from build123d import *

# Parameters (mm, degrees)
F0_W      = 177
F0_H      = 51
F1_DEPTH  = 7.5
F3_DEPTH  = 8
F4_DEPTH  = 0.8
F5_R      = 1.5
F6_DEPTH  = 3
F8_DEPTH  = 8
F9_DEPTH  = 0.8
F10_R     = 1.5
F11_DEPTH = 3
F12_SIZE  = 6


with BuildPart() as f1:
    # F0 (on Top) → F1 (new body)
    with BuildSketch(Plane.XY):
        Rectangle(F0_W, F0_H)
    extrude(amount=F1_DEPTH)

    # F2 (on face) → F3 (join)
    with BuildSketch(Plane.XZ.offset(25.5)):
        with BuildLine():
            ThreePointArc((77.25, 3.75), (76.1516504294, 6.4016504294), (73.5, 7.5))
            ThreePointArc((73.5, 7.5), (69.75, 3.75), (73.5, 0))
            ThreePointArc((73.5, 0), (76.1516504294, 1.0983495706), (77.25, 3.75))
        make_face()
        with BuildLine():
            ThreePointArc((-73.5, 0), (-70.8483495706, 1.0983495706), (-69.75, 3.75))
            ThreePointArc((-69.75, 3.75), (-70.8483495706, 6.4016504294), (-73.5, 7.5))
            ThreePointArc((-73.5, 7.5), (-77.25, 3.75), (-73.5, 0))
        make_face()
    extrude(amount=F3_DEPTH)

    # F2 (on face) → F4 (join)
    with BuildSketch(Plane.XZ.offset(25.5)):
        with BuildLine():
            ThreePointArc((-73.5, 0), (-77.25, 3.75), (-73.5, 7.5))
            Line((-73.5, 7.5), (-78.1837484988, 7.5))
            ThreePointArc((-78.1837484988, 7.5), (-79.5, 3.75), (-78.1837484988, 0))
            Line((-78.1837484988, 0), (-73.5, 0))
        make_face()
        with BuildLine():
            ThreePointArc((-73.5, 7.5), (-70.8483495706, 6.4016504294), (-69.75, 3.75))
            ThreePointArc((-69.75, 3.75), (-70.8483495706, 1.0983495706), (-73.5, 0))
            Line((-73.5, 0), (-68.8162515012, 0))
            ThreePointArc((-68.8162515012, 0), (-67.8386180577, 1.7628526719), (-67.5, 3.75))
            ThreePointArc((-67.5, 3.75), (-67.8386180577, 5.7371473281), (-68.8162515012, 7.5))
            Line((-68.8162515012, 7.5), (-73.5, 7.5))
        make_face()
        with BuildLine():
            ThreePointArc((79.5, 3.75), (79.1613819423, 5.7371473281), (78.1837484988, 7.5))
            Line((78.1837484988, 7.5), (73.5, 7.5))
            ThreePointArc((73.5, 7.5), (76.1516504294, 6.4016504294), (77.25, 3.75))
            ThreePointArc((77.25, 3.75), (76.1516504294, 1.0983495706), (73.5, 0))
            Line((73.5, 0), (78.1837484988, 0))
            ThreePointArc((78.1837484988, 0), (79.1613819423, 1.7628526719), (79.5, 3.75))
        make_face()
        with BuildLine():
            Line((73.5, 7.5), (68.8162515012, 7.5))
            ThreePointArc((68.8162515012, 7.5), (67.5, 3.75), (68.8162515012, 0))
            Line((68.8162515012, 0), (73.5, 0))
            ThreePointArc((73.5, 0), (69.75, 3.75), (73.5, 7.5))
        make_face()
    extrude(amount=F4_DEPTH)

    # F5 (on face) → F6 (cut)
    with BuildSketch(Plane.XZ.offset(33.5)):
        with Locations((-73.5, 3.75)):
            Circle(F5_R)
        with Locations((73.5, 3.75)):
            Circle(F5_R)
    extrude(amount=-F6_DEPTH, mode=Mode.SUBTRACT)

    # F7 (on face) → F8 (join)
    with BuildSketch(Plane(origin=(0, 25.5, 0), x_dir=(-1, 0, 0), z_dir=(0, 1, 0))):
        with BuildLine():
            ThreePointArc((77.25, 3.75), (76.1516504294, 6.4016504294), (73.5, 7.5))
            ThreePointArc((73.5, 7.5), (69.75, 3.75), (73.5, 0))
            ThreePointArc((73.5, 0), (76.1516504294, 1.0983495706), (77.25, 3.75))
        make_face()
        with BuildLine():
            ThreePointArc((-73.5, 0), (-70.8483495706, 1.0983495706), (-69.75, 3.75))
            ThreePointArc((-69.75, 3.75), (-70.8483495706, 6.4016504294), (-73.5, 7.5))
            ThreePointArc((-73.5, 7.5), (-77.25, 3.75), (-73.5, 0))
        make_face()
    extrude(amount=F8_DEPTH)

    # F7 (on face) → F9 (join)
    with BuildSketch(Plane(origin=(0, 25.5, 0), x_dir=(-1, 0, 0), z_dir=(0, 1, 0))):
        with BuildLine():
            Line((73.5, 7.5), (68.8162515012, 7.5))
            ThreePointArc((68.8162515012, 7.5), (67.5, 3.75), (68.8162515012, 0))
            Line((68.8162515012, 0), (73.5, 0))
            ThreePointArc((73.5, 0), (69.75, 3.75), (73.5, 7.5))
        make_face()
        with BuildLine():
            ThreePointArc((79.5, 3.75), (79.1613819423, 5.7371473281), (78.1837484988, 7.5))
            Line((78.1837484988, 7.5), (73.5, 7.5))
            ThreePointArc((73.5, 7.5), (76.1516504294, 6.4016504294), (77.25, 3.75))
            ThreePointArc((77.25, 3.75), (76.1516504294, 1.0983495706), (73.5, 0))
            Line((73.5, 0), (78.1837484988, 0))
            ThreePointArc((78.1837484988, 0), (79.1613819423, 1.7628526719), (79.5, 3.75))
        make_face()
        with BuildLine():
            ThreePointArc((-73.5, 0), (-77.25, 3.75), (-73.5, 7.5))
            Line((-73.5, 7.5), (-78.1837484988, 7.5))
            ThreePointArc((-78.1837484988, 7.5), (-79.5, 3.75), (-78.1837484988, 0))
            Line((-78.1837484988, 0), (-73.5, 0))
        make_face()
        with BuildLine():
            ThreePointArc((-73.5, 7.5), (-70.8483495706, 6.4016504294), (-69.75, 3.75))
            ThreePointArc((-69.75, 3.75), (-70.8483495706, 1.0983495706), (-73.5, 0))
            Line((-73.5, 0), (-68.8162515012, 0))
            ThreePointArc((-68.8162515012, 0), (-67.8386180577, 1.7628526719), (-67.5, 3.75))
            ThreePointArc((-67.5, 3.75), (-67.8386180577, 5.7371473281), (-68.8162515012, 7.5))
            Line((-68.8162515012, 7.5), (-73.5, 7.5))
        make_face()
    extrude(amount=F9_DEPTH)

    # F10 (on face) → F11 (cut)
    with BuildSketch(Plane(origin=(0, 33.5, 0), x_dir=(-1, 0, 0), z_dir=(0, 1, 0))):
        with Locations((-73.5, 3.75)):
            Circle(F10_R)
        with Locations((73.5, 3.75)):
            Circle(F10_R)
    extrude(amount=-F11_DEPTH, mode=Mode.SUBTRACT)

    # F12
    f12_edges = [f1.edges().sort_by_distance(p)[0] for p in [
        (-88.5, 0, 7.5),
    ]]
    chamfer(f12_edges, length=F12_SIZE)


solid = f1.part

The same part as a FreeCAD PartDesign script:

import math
import FreeCAD as App
import Part
import Sketcher
Q = App.Units.Quantity


def edges_at(feature, points):
    """Names of the edges that pass closest to the given points."""
    edges = feature.Shape.Edges
    near = lambda p: min(range(len(edges)), key=lambda i: edges[i].distToShape(Part.Vertex(*p))[0])
    return sorted({f"Edge{near(p) + 1}" for p in points})


def add_polygon(sketch, points):
    """Adds a closed chain of lines whose ends are joined by coincident constraints."""
    first, n = sketch.GeometryCount, len(points)
    for a, b in zip(points, points[1:] + points[:1]):
        sketch.addGeometry(Part.LineSegment(App.Vector(*a, 0), App.Vector(*b, 0)), False)
    for i in range(n):
        sketch.addConstraint(Sketcher.Constraint("Coincident", first + i, 2, first + (i + 1) % n, 1))

doc = App.newDocument("Part")
params = doc.addObject("Spreadsheet::Sheet", "Params")
for row, (alias, value) in enumerate([
    ("sketch1_width", "177 mm"),
    ("sketch1_height", "51 mm"),
    ("pad1_length", "7.5 mm"),
    ("sketch2_radius", "3.75 mm"),
    ("pad2_length", "8 mm"),
    ("sketch3_radius", "6 mm"),
    ("sketch3_radius2", "3.75 mm"),
    ("pad3_length", "0.8 mm"),
    ("sketch4_diameter", "3 mm"),
    ("pocket1_length", "3 mm"),
    ("sketch5_radius", "3.75 mm"),
    ("pad4_length", "8 mm"),
    ("sketch6_radius", "6 mm"),
    ("sketch6_radius2", "3.75 mm"),
    ("pad5_length", "0.8 mm"),
    ("sketch7_diameter", "3 mm"),
    ("pocket2_length", "3 mm"),
    ("chamfer_size", "6 mm"),
], start=1):
    params.set(f"A{row}", alias)
    params.set(f"B{row}", "=" + value)
    params.setAlias(f"B{row}", alias)

body = doc.addObject("PartDesign::Body", "Body")

# Sketch on XY plane
sketch1 = body.newObject("Sketcher::SketchObject", "Sketch")
sketch1.AttachmentSupport = (doc.getObject("XY_Plane"), [""])
sketch1.MapMode = "FlatFace"
add_polygon(sketch1, [(-88.5, 25.5), (-88.5, -25.5), (88.5, -25.5), (88.5, 25.5)])  # lines 0-3
sketch1.addConstraint([
    Sketcher.Constraint("Vertical", 0),
    Sketcher.Constraint("Horizontal", 1),
    Sketcher.Constraint("Vertical", 2),
    Sketcher.Constraint("Horizontal", 3),
    Sketcher.Constraint("Symmetric", 0, 2, 2, 2, -1, 1),
    Sketcher.Constraint("DistanceX", 1, 1, 1, 2, Q("177 mm")),
    Sketcher.Constraint("DistanceY", 0, 2, 0, 1, Q("51 mm")),
])
sketch1.setExpression("Constraints[9]", "Params.sketch1_width")
sketch1.setExpression("Constraints[10]", "Params.sketch1_height")
pad1 = body.newObject("PartDesign::Pad", "Pad")
pad1.Profile = sketch1
pad1.setExpression("Length", "Params.pad1_length")

# Sketch on XZ plane
sketch2 = body.newObject("Sketcher::SketchObject", "Sketch001")
sketch2.AttachmentSupport = (doc.getObject("XZ_Plane"), [""])
sketch2.MapMode = "FlatFace"
sketch2.AttachmentOffset = App.Placement(App.Vector(0, 0, 25.5), App.Rotation())
sketch2.addGeometry([
    Part.ArcOfCircle(Part.Circle(App.Vector(73.5, 3.75, 0), App.Vector(0, 0, 1), 3.75), math.radians(0), math.radians(90)),  # 0
    Part.ArcOfCircle(Part.Circle(App.Vector(73.5, 3.75, 0), App.Vector(0, 0, 1), 3.75), math.radians(90), math.radians(270)),  # 1
    Part.ArcOfCircle(Part.Circle(App.Vector(73.5, 3.75, 0), App.Vector(0, 0, 1), 3.75), math.radians(-90), math.radians(0)),  # 2
    Part.ArcOfCircle(Part.Circle(App.Vector(-73.5, 3.75, 0), App.Vector(0, 0, 1), 3.75), math.radians(-90), math.radians(0)),  # 3
    Part.ArcOfCircle(Part.Circle(App.Vector(-73.5, 3.75, 0), App.Vector(0, 0, 1), 3.75), math.radians(0), math.radians(90)),  # 4
    Part.ArcOfCircle(Part.Circle(App.Vector(-73.5, 3.75, 0), App.Vector(0, 0, 1), 3.75), math.radians(90), math.radians(270)),  # 5
], False)
sketch2.addConstraint([
    Sketcher.Constraint("Tangent", 0, 2, 1, 1),
    Sketcher.Constraint("Tangent", 1, 2, 2, 1),
    Sketcher.Constraint("Tangent", 2, 2, 0, 1),
    Sketcher.Constraint("Tangent", 3, 2, 4, 1),
    Sketcher.Constraint("Tangent", 4, 2, 5, 1),
    Sketcher.Constraint("Tangent", 5, 2, 3, 1),
    Sketcher.Constraint("Equal", 2, 3),
    Sketcher.Constraint("Symmetric", 1, 2, 5, 2, -1, 1),
    Sketcher.Constraint("Symmetric", 0, 3, 3, 3, -2),
    Sketcher.Constraint("Horizontal", 5, 3, 2, 2),
    Sketcher.Constraint("Horizontal", 2, 2, 3, 2),
    Sketcher.Constraint("Vertical", 2, 3, 0, 2),
    Sketcher.Constraint("Vertical", 0, 2, 1, 2),
    Sketcher.Constraint("Vertical", 5, 3, 4, 2),
    Sketcher.Constraint("Radius", 0, Q("3.75 mm")),
    Sketcher.Constraint("DistanceX", 3, 3, 0, 3, Q("147 mm")),
])
sketch2.setExpression("Constraints[14]", "Params.sketch2_radius")
pad2 = body.newObject("PartDesign::Pad", "Pad001")
pad2.Profile = sketch2
pad2.setExpression("Length", "Params.pad2_length")

# Sketch on XZ plane
sketch3 = body.newObject("Sketcher::SketchObject", "Sketch002")
sketch3.AttachmentSupport = (doc.getObject("XZ_Plane"), [""])
sketch3.MapMode = "FlatFace"
sketch3.AttachmentOffset = App.Placement(App.Vector(0, 0, 25.5), App.Rotation())
sketch3.addGeometry([
    Part.ArcOfCircle(Part.Circle(App.Vector(-73.5, 3.75, 0), App.Vector(0, 0, 1), 3.75), math.radians(90), math.radians(270)),  # 0
    Part.LineSegment(App.Vector(-73.5, 7.5, 0), App.Vector(-78.183748, 7.5, 0)),  # 1
    Part.ArcOfCircle(Part.Circle(App.Vector(-73.5, 3.75, 0), App.Vector(0, 0, 1), 6), math.radians(141.317813), math.radians(218.682187)),  # 2
    Part.LineSegment(App.Vector(-78.183748, 0, 0), App.Vector(-73.5, 0, 0)),  # 3
    Part.ArcOfCircle(Part.Circle(App.Vector(-73.5, 3.75, 0), App.Vector(0, 0, 1), 3.75), math.radians(0), math.radians(90)),  # 4
    Part.ArcOfCircle(Part.Circle(App.Vector(-73.5, 3.75, 0), App.Vector(0, 0, 1), 3.75), math.radians(-90), math.radians(0)),  # 5
    Part.LineSegment(App.Vector(-73.5, 0, 0), App.Vector(-68.816252, 0, 0)),  # 6
    Part.ArcOfCircle(Part.Circle(App.Vector(-73.5, 3.75, 0), App.Vector(0, 0, 1), 6), math.radians(-38.682187), math.radians(0)),  # 7
    Part.ArcOfCircle(Part.Circle(App.Vector(-73.5, 3.75, 0), App.Vector(0, 0, 1), 6), math.radians(0), math.radians(38.682187)),  # 8
    Part.LineSegment(App.Vector(-68.816252, 7.5, 0), App.Vector(-73.5, 7.5, 0)),  # 9
    Part.ArcOfCircle(Part.Circle(App.Vector(73.5, 3.75, 0), App.Vector(0, 0, 1), 6), math.radians(0), math.radians(38.682187)),  # 10
    Part.LineSegment(App.Vector(78.183748, 7.5, 0), App.Vector(73.5, 7.5, 0)),  # 11
    Part.ArcOfCircle(Part.Circle(App.Vector(73.5, 3.75, 0), App.Vector(0, 0, 1), 3.75), math.radians(0), math.radians(90)),  # 12
    Part.ArcOfCircle(Part.Circle(App.Vector(73.5, 3.75, 0), App.Vector(0, 0, 1), 3.75), math.radians(-90), math.radians(0)),  # 13
    Part.LineSegment(App.Vector(73.5, 0, 0), App.Vector(78.183748, 0, 0)),  # 14
    Part.ArcOfCircle(Part.Circle(App.Vector(73.5, 3.75, 0), App.Vector(0, 0, 1), 6), math.radians(-38.682187), math.radians(0)),  # 15
    Part.LineSegment(App.Vector(73.5, 7.5, 0), App.Vector(68.816252, 7.5, 0)),  # 16
    Part.ArcOfCircle(Part.Circle(App.Vector(73.5, 3.75, 0), App.Vector(0, 0, 1), 6), math.radians(141.317813), math.radians(218.682187)),  # 17
    Part.LineSegment(App.Vector(68.816252, 0, 0), App.Vector(73.5, 0, 0)),  # 18
    Part.ArcOfCircle(Part.Circle(App.Vector(73.5, 3.75, 0), App.Vector(0, 0, 1), 3.75), math.radians(90), math.radians(270)),  # 19
], False)
sketch3.addConstraint([
    Sketcher.Constraint("Tangent", 0, 1, 1, 1),
    Sketcher.Constraint("Coincident", 1, 2, 2, 1),
    Sketcher.Constraint("Coincident", 2, 2, 3, 1),
    Sketcher.Constraint("Tangent", 3, 2, 0, 2),
    Sketcher.Constraint("Tangent", 4, 1, 5, 2),
    Sketcher.Constraint("Tangent", 5, 1, 6, 1),
    Sketcher.Constraint("Coincident", 6, 2, 7, 1),
    Sketcher.Constraint("Tangent", 7, 2, 8, 1),
    Sketcher.Constraint("Coincident", 8, 2, 9, 1),
    Sketcher.Constraint("Tangent", 9, 2, 4, 2),
    Sketcher.Constraint("Coincident", 10, 2, 11, 1),
    Sketcher.Constraint("Tangent", 11, 2, 12, 2),
    Sketcher.Constraint("Tangent", 12, 1, 13, 2),
    Sketcher.Constraint("Tangent", 13, 1, 14, 1),
    Sketcher.Constraint("Coincident", 14, 2, 15, 1),
    Sketcher.Constraint("Tangent", 15, 2, 10, 1),
    Sketcher.Constraint("Coincident", 16, 2, 17, 1),
    Sketcher.Constraint("Coincident", 17, 2, 18, 1),
    Sketcher.Constraint("Tangent", 18, 2, 19, 2),
    Sketcher.Constraint("Tangent", 19, 1, 16, 1),
    Sketcher.Constraint("Horizontal", 1),
    Sketcher.Constraint("Horizontal", 3),
    Sketcher.Constraint("Horizontal", 6),
    Sketcher.Constraint("Horizontal", 9),
    Sketcher.Constraint("Horizontal", 11),
    Sketcher.Constraint("Horizontal", 14),
    Sketcher.Constraint("Horizontal", 16),
    Sketcher.Constraint("Horizontal", 18),
    Sketcher.Constraint("Coincident", 2, 3, 0, 3),
    Sketcher.Constraint("Coincident", 4, 3, 0, 3),
    Sketcher.Constraint("Coincident", 7, 3, 0, 3),
    Sketcher.Constraint("Coincident", 12, 3, 10, 3),
    Sketcher.Constraint("Coincident", 17, 3, 10, 3),
    Sketcher.Constraint("Coincident", 19, 3, 10, 3),
    Sketcher.Constraint("Coincident", 5, 1, 3, 2),
    Sketcher.Constraint("Coincident", 18, 2, 13, 1),
    Sketcher.Constraint("Equal", 2, 7),
    Sketcher.Constraint("Equal", 7, 8),
    Sketcher.Constraint("Equal", 8, 10),
    Sketcher.Constraint("Equal", 5, 12),
    Sketcher.Constraint("Equal", 10, 15),
    Sketcher.Constraint("Equal", 15, 17),
    Sketcher.Constraint("Symmetric", 3, 2, 13, 1, -1, 1),
    Sketcher.Constraint("PointOnObject", 2, 2, -1),
    Sketcher.Constraint("Horizontal", 19, 3, 4, 1),
    Sketcher.Constraint("Horizontal", 4, 1, 7, 2),
    Sketcher.Constraint("Horizontal", 7, 2, 12, 1),
    Sketcher.Constraint("Horizontal", 12, 1, 15, 2),
    Sketcher.Constraint("Radius", 2, Q("6 mm")),
    Sketcher.Constraint("Radius", 0, Q("3.75 mm")),
    Sketcher.Constraint("DistanceX", 0, 3, 10, 3, Q("147 mm")),
])
sketch3.setExpression("Constraints[48]", "Params.sketch3_radius")
sketch3.setExpression("Constraints[49]", "Params.sketch3_radius2")
pad3 = body.newObject("PartDesign::Pad", "Pad002")
pad3.Profile = sketch3
pad3.setExpression("Length", "Params.pad3_length")

# Sketch on XZ plane
sketch4 = body.newObject("Sketcher::SketchObject", "Sketch003")
sketch4.AttachmentSupport = (doc.getObject("XZ_Plane"), [""])
sketch4.MapMode = "FlatFace"
sketch4.AttachmentOffset = App.Placement(App.Vector(0, 0, 33.5), App.Rotation())
sketch4.addGeometry([
    Part.Circle(App.Vector(-73.5, 3.75, 0), App.Vector(0, 0, 1), 1.5),
    Part.Circle(App.Vector(73.5, 3.75, 0), App.Vector(0, 0, 1), 1.5),
], False)
sketch4.addConstraint([
    Sketcher.Constraint("Equal", 0, 1),
    Sketcher.Constraint("Symmetric", 0, 3, 1, 3, -2),
    Sketcher.Constraint("Diameter", 0, Q("3 mm")),
    Sketcher.Constraint("DistanceX", 0, 3, 1, 3, Q("147 mm")),
    Sketcher.Constraint("DistanceY", -1, 1, 0, 3, Q("3.75 mm")),
])
sketch4.setExpression("Constraints[2]", "Params.sketch4_diameter")
pocket1 = body.newObject("PartDesign::Pocket", "Pocket")
pocket1.Profile = sketch4
pocket1.setExpression("Length", "Params.pocket1_length")

# Sketch on XZ plane
sketch5 = body.newObject("Sketcher::SketchObject", "Sketch004")
sketch5.AttachmentSupport = (doc.getObject("XZ_Plane"), [""])
sketch5.MapMode = "FlatFace"
sketch5.AttachmentOffset = App.Placement(App.Vector(0, 0, -25.5), App.Rotation())
sketch5.addGeometry([
    Part.ArcOfCircle(Part.Circle(App.Vector(-73.5, 3.75, 0), App.Vector(0, 0, 1), 3.75), math.radians(90), math.radians(180)),  # 0
    Part.ArcOfCircle(Part.Circle(App.Vector(-73.5, 3.75, 0), App.Vector(0, 0, 1), 3.75), math.radians(-90), math.radians(90)),  # 1
    Part.ArcOfCircle(Part.Circle(App.Vector(-73.5, 3.75, 0), App.Vector(0, 0, 1), 3.75), math.radians(180), math.radians(270)),  # 2
    Part.ArcOfCircle(Part.Circle(App.Vector(73.5, 3.75, 0), App.Vector(0, 0, 1), 3.75), math.radians(180), math.radians(270)),  # 3
    Part.ArcOfCircle(Part.Circle(App.Vector(73.5, 3.75, 0), App.Vector(0, 0, 1), 3.75), math.radians(90), math.radians(180)),  # 4
    Part.ArcOfCircle(Part.Circle(App.Vector(73.5, 3.75, 0), App.Vector(0, 0, 1), 3.75), math.radians(-90), math.radians(90)),  # 5
], False)
sketch5.addConstraint([
    Sketcher.Constraint("Tangent", 0, 1, 1, 2),
    Sketcher.Constraint("Tangent", 1, 1, 2, 2),
    Sketcher.Constraint("Tangent", 2, 1, 0, 2),
    Sketcher.Constraint("Tangent", 3, 1, 4, 2),
    Sketcher.Constraint("Tangent", 4, 1, 5, 2),
    Sketcher.Constraint("Tangent", 5, 1, 3, 2),
    Sketcher.Constraint("Equal", 2, 3),
    Sketcher.Constraint("Symmetric", 1, 1, 5, 1, -1, 1),
    Sketcher.Constraint("Symmetric", 0, 3, 3, 3, -2),
    Sketcher.Constraint("Horizontal", 5, 3, 2, 1),
    Sketcher.Constraint("Horizontal", 2, 1, 3, 1),
    Sketcher.Constraint("Vertical", 2, 3, 0, 1),
    Sketcher.Constraint("Vertical", 0, 1, 1, 1),
    Sketcher.Constraint("Vertical", 5, 3, 4, 1),
    Sketcher.Constraint("Radius", 0, Q("3.75 mm")),
    Sketcher.Constraint("DistanceX", 0, 3, 3, 3, Q("147 mm")),
])
sketch5.setExpression("Constraints[14]", "Params.sketch5_radius")
pad4 = body.newObject("PartDesign::Pad", "Pad003")
pad4.Profile = sketch5
pad4.setExpression("Length", "Params.pad4_length")
pad4.Reversed = True

# Sketch on XZ plane
sketch6 = body.newObject("Sketcher::SketchObject", "Sketch005")
sketch6.AttachmentSupport = (doc.getObject("XZ_Plane"), [""])
sketch6.MapMode = "FlatFace"
sketch6.AttachmentOffset = App.Placement(App.Vector(0, 0, -25.5), App.Rotation())
sketch6.addGeometry([
    Part.LineSegment(App.Vector(-73.5, 7.5, 0), App.Vector(-68.816252, 7.5, 0)),  # 0
    Part.ArcOfCircle(Part.Circle(App.Vector(-73.5, 3.75, 0), App.Vector(0, 0, 1), 6), math.radians(-38.682187), math.radians(38.682187)),  # 1
    Part.LineSegment(App.Vector(-68.816252, 0, 0), App.Vector(-73.5, 0, 0)),  # 2
    Part.ArcOfCircle(Part.Circle(App.Vector(-73.5, 3.75, 0), App.Vector(0, 0, 1), 3.75), math.radians(-90), math.radians(90)),  # 3
    Part.ArcOfCircle(Part.Circle(App.Vector(-73.5, 3.75, 0), App.Vector(0, 0, 1), 6), math.radians(141.317813), math.radians(180)),  # 4
    Part.LineSegment(App.Vector(-78.183748, 7.5, 0), App.Vector(-73.5, 7.5, 0)),  # 5
    Part.ArcOfCircle(Part.Circle(App.Vector(-73.5, 3.75, 0), App.Vector(0, 0, 1), 3.75), math.radians(90), math.radians(180)),  # 6
    Part.ArcOfCircle(Part.Circle(App.Vector(-73.5, 3.75, 0), App.Vector(0, 0, 1), 3.75), math.radians(180), math.radians(270)),  # 7
    Part.LineSegment(App.Vector(-73.5, 0, 0), App.Vector(-78.183748, 0, 0)),  # 8
    Part.ArcOfCircle(Part.Circle(App.Vector(-73.5, 3.75, 0), App.Vector(0, 0, 1), 6), math.radians(180), math.radians(218.682187)),  # 9
    Part.ArcOfCircle(Part.Circle(App.Vector(73.5, 3.75, 0), App.Vector(0, 0, 1), 3.75), math.radians(-90), math.radians(90)),  # 10
    Part.LineSegment(App.Vector(73.5, 7.5, 0), App.Vector(78.183748, 7.5, 0)),  # 11
    Part.ArcOfCircle(Part.Circle(App.Vector(73.5, 3.75, 0), App.Vector(0, 0, 1), 6), math.radians(-38.682187), math.radians(38.682187)),  # 12
    Part.LineSegment(App.Vector(78.183748, 0, 0), App.Vector(73.5, 0, 0)),  # 13
    Part.ArcOfCircle(Part.Circle(App.Vector(73.5, 3.75, 0), App.Vector(0, 0, 1), 3.75), math.radians(90), math.radians(180)),  # 14
    Part.ArcOfCircle(Part.Circle(App.Vector(73.5, 3.75, 0), App.Vector(0, 0, 1), 3.75), math.radians(180), math.radians(270)),  # 15
    Part.LineSegment(App.Vector(73.5, 0, 0), App.Vector(68.816252, 0, 0)),  # 16
    Part.ArcOfCircle(Part.Circle(App.Vector(73.5, 3.75, 0), App.Vector(0, 0, 1), 6), math.radians(180), math.radians(218.682187)),  # 17
    Part.ArcOfCircle(Part.Circle(App.Vector(73.5, 3.75, 0), App.Vector(0, 0, 1), 6), math.radians(141.317813), math.radians(180)),  # 18
    Part.LineSegment(App.Vector(68.816252, 7.5, 0), App.Vector(73.5, 7.5, 0)),  # 19
], False)
sketch6.addConstraint([
    Sketcher.Constraint("Coincident", 0, 2, 1, 2),
    Sketcher.Constraint("Coincident", 1, 1, 2, 1),
    Sketcher.Constraint("Tangent", 2, 2, 3, 1),
    Sketcher.Constraint("Tangent", 3, 2, 0, 1),
    Sketcher.Constraint("Coincident", 4, 1, 5, 1),
    Sketcher.Constraint("Tangent", 5, 2, 6, 1),
    Sketcher.Constraint("Tangent", 6, 2, 7, 1),
    Sketcher.Constraint("Tangent", 7, 2, 8, 1),
    Sketcher.Constraint("Coincident", 8, 2, 9, 2),
    Sketcher.Constraint("Tangent", 9, 1, 4, 2),
    Sketcher.Constraint("Tangent", 10, 2, 11, 1),
    Sketcher.Constraint("Coincident", 11, 2, 12, 2),
    Sketcher.Constraint("Coincident", 12, 1, 13, 1),
    Sketcher.Constraint("Tangent", 13, 2, 10, 1),
    Sketcher.Constraint("Tangent", 14, 2, 15, 1),
    Sketcher.Constraint("Tangent", 15, 2, 16, 1),
    Sketcher.Constraint("Coincident", 16, 2, 17, 2),
    Sketcher.Constraint("Tangent", 17, 1, 18, 2),
    Sketcher.Constraint("Coincident", 18, 1, 19, 1),
    Sketcher.Constraint("Tangent", 19, 2, 14, 1),
    Sketcher.Constraint("Horizontal", 0),
    Sketcher.Constraint("Horizontal", 2),
    Sketcher.Constraint("Horizontal", 5),
    Sketcher.Constraint("Horizontal", 8),
    Sketcher.Constraint("Horizontal", 11),
    Sketcher.Constraint("Horizontal", 13),
    Sketcher.Constraint("Horizontal", 16),
    Sketcher.Constraint("Horizontal", 19),
    Sketcher.Constraint("Coincident", 3, 3, 1, 3),
    Sketcher.Constraint("Coincident", 4, 3, 1, 3),
    Sketcher.Constraint("Coincident", 6, 3, 1, 3),
    Sketcher.Constraint("Coincident", 12, 3, 10, 3),
    Sketcher.Constraint("Coincident", 14, 3, 10, 3),
    Sketcher.Constraint("Coincident", 17, 3, 10, 3),
    Sketcher.Constraint("Coincident", 7, 2, 2, 2),
    Sketcher.Constraint("Coincident", 15, 2, 13, 2),
    Sketcher.Constraint("Equal", 1, 4),
    Sketcher.Constraint("Equal", 4, 9),
    Sketcher.Constraint("Equal", 7, 10),
    Sketcher.Constraint("Equal", 9, 12),
    Sketcher.Constraint("Equal", 12, 17),
    Sketcher.Constraint("Equal", 17, 18),
    Sketcher.Constraint("Symmetric", 8, 2, 12, 1, -1, 1),
    Sketcher.Constraint("PointOnObject", 1, 1, -1),
    Sketcher.Constraint("Horizontal", 18, 3, 6, 2),
    Sketcher.Constraint("Horizontal", 6, 2, 9, 1),
    Sketcher.Constraint("Horizontal", 9, 1, 14, 2),
    Sketcher.Constraint("Horizontal", 14, 2, 17, 1),
    Sketcher.Constraint("Radius", 1, Q("6 mm")),
    Sketcher.Constraint("Radius", 3, Q("3.75 mm")),
    Sketcher.Constraint("DistanceX", 1, 3, 10, 3, Q("147 mm")),
])
sketch6.setExpression("Constraints[48]", "Params.sketch6_radius")
sketch6.setExpression("Constraints[49]", "Params.sketch6_radius2")
pad5 = body.newObject("PartDesign::Pad", "Pad004")
pad5.Profile = sketch6
pad5.setExpression("Length", "Params.pad5_length")
pad5.Reversed = True

# Sketch on XZ plane
sketch7 = body.newObject("Sketcher::SketchObject", "Sketch006")
sketch7.AttachmentSupport = (doc.getObject("XZ_Plane"), [""])
sketch7.MapMode = "FlatFace"
sketch7.AttachmentOffset = App.Placement(App.Vector(0, 0, -33.5), App.Rotation())
sketch7.addGeometry([
    Part.Circle(App.Vector(73.5, 3.75, 0), App.Vector(0, 0, 1), 1.5),
    Part.Circle(App.Vector(-73.5, 3.75, 0), App.Vector(0, 0, 1), 1.5),
], False)
sketch7.addConstraint([
    Sketcher.Constraint("Equal", 0, 1),
    Sketcher.Constraint("Symmetric", 0, 3, 1, 3, -2),
    Sketcher.Constraint("Diameter", 0, Q("3 mm")),
    Sketcher.Constraint("DistanceX", 1, 3, 0, 3, Q("147 mm")),
    Sketcher.Constraint("DistanceY", -1, 1, 0, 3, Q("3.75 mm")),
])
sketch7.setExpression("Constraints[2]", "Params.sketch7_diameter")
pocket2 = body.newObject("PartDesign::Pocket", "Pocket001")
pocket2.Profile = sketch7
pocket2.setExpression("Length", "Params.pocket2_length")
pocket2.Reversed = True
doc.recompute()

chamfer = body.newObject("PartDesign::Chamfer", "Chamfer")
chamfer.Base = (pocket2, edges_at(pocket2, [(-88.5, 0, 7.5)]))
chamfer.setExpression("Size", "Params.chamfer_size")

doc.recompute()
